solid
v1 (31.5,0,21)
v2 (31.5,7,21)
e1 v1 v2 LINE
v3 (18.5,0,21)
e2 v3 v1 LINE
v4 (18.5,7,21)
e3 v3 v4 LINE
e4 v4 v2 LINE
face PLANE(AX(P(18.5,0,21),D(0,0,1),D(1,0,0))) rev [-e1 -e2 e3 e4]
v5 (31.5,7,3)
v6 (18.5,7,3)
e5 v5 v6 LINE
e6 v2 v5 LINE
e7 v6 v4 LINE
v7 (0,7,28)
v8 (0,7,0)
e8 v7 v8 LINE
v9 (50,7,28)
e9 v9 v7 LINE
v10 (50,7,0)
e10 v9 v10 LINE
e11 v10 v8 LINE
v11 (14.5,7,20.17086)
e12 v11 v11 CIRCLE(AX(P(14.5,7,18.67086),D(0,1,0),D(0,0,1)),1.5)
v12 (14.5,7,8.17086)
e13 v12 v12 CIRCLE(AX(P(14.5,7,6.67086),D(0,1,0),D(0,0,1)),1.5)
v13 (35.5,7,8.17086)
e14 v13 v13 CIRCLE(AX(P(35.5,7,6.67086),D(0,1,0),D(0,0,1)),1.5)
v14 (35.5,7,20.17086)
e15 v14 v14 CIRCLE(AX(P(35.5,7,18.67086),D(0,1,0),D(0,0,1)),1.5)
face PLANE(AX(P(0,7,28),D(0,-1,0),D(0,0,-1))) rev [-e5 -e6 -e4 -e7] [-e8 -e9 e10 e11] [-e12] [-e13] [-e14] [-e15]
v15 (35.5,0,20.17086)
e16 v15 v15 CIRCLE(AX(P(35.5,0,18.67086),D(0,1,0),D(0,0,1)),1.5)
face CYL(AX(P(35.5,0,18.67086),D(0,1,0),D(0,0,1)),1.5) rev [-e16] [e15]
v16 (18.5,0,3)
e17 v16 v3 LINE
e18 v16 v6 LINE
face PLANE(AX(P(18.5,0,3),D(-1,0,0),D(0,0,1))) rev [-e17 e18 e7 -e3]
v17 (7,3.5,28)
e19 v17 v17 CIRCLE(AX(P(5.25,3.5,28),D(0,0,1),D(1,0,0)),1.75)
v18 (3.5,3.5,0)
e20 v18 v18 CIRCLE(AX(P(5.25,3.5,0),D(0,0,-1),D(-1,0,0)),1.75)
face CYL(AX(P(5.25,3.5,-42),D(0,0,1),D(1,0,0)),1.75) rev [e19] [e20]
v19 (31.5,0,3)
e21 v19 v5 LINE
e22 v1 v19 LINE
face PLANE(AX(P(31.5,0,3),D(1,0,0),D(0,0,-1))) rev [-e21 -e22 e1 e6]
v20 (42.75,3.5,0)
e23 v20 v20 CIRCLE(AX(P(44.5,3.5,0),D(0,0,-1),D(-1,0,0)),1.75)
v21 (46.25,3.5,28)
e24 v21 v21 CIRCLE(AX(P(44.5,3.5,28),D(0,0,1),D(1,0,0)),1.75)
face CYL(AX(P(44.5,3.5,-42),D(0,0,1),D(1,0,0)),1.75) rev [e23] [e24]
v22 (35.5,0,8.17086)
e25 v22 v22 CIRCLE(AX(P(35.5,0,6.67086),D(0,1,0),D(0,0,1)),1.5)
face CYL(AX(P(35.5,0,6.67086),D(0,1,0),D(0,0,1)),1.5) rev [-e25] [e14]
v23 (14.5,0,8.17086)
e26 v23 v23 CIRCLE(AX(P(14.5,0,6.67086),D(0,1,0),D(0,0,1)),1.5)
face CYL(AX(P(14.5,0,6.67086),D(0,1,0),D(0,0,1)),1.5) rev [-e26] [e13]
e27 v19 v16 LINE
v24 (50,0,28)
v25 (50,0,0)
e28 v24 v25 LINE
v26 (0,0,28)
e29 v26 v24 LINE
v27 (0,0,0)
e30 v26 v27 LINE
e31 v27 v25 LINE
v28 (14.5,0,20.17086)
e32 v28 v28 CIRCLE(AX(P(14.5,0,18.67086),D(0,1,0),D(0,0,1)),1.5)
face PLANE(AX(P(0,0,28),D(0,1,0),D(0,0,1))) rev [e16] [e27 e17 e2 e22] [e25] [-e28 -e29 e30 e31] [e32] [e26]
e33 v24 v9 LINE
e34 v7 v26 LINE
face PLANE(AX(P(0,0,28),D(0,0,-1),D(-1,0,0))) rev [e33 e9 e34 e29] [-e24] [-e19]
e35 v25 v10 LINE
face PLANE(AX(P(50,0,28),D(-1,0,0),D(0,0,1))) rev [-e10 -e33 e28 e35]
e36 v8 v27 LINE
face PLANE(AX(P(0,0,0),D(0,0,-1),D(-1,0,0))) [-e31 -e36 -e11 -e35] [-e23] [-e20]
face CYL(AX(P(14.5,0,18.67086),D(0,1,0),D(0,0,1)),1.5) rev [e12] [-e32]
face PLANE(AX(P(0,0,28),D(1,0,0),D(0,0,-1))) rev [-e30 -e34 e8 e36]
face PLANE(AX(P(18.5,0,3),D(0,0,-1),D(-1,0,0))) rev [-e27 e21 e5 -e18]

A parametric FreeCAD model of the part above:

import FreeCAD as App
import Part
import Sketcher

V = App.Vector

doc = App.newDocument("Part")
body = doc.addObject("PartDesign::Body", "Body")

sketch1 = body.newObject("Sketcher::SketchObject", "Sketch")
sketch1.AttachmentSupport = (doc.getObject("XY_Plane"), [""])
sketch1.MapMode = "FlatFace"
sketch1.addGeometry([
    Part.LineSegment(V(0, 7, 0), V(0, 0, 0)),
    Part.LineSegment(V(0, 0, 0), V(50, 0, 0)),
    Part.LineSegment(V(50, 0, 0), V(50, 7, 0)),
    Part.LineSegment(V(50, 7, 0), V(0, 7, 0)),
], False)
sketch1.addConstraint([
    Sketcher.Constraint("Coincident", 0, 2, 1, 1),
    Sketcher.Constraint("Coincident", 1, 2, 2, 1),
    Sketcher.Constraint("Coincident", 2, 2, 3, 1),
    Sketcher.Constraint("Coincident", 3, 2, 0, 1),
    Sketcher.Constraint("Vertical", 0),
    Sketcher.Constraint("Horizontal", 1),
    Sketcher.Constraint("Vertical", 2),
    Sketcher.Constraint("Horizontal", 3),
    Sketcher.Constraint("Coincident", 0, 2, -1, 1),
    Sketcher.Constraint("DistanceX", 1, 1, 1, 2, 50.0),
    Sketcher.Constraint("DistanceY", 0, 2, 0, 1, 7.0),
])
pad1 = body.newObject("PartDesign::Pad", "Pad")
pad1.Profile = sketch1
pad1.Length = 28

sketch2 = body.newObject("Sketcher::SketchObject", "Sketch001")
sketch2.AttachmentSupport = (doc.getObject("XY_Plane"), [""])
sketch2.MapMode = "FlatFace"
sketch2.AttachmentOffset = App.Placement(V(0, 0, 28), App.Rotation())
sketch2.addGeometry([
    Part.Circle(V(5.2, 3.5, 0), V(0, 0, 1), 1.8),
    Part.Circle(V(44.5, 3.5, 0), V(0, 0, 1), 1.8),
], False)
sketch2.addConstraint([
    Sketcher.Constraint("Equal", 0, 1),
    Sketcher.Constraint("Horizontal", 0, 3, 1, 3),
    Sketcher.Constraint("Diameter", 0, 3.5),
    Sketcher.Constraint("DistanceY", -1, 1, 0, 3, 3.5),
    Sketcher.Constraint("DistanceX", -1, 1, 1, 3, 44.5),
    Sketcher.Constraint("DistanceX", -1, 1, 0, 3, 5.25),
])
pocket1 = body.newObject("PartDesign::Pocket", "Pocket")
pocket1.Profile = sketch2
pocket1.Length = 70

sketch3 = body.newObject("Sketcher::SketchObject", "Sketch002")
sketch3.AttachmentSupport = (doc.getObject("XZ_Plane"), [""])
sketch3.MapMode = "FlatFace"
sketch3.AttachmentOffset = App.Placement(V(0, 0, -7), App.Rotation())
sketch3.addGeometry([
    Part.Circle(V(14.5, 6.7, 0), V(0, 0, 1), 1.5),
    Part.Circle(V(14.5, 18.7, 0), V(0, 0, 1), 1.5),
    Part.Circle(V(35.5, 6.7, 0), V(0, 0, 1), 1.5),
    Part.Circle(V(35.5, 18.7, 0), V(0, 0, 1), 1.5),
    Part.LineSegment(V(18.5, 3, 0), V(18.5, 21, 0)),
    Part.LineSegment(V(18.5, 21, 0), V(31.5, 21, 0)),
    Part.LineSegment(V(31.5, 21, 0), V(31.5, 3, 0)),
    Part.LineSegment(V(31.5, 3, 0), V(18.5, 3, 0)),
], False)
sketch3.addConstraint([
    Sketcher.Constraint("Coincident", 4, 2, 5, 1),
    Sketcher.Constraint("Coincident", 5, 2, 6, 1),
    Sketcher.Constraint("Coincident", 6, 2, 7, 1),
    Sketcher.Constraint("Coincident", 7, 2, 4, 1),
    Sketcher.Constraint("Vertical", 4),
    Sketcher.Constraint("Horizontal", 5),
    Sketcher.Constraint("Vertical", 6),
    Sketcher.Constraint("Horizontal", 7),
    Sketcher.Constraint("Equal", 0, 1),
    Sketcher.Constraint("Equal", 1, 2),
    Sketcher.Constraint("Equal", 2, 3),
    Sketcher.Constraint("Horizontal", 0, 3, 2, 3),
    Sketcher.Constraint("Horizontal", 1, 3, 3, 3),
    Sketcher.Constraint("Vertical", 0, 3, 1, 3),
    Sketcher.Constraint("Vertical", 2, 3, 3, 3),
    Sketcher.Constraint("Diameter", 0, 3.0),
    Sketcher.Constraint("DistanceX", 5, 1, 5, 2, 13.0),
    Sketcher.Constraint("DistanceY", 4, 1, 4, 2, 18.0),
    Sketcher.Constraint("DistanceY", -1, 1, 4, 2, 21.0),
    Sketcher.Constraint("DistanceY", 0, 3, 1, 3, 12.0),
    Sketcher.Constraint("DistanceX", 0, 3, 2, 3, 21.0),
    Sketcher.Constraint("DistanceX", 1, 3, 4, 2, 4.0),
    Sketcher.Constraint("DistanceX", -1, 1, 0, 3, 14.5),
    Sketcher.Constraint("DistanceY", -1, 1, 0, 3, 6.67086),
])
pocket2 = body.newObject("PartDesign::Pocket", "Pocket001")
pocket2.Profile = sketch3
pocket2.Type = "ThroughAll"
pocket2.Reversed = True

doc.recompute()
